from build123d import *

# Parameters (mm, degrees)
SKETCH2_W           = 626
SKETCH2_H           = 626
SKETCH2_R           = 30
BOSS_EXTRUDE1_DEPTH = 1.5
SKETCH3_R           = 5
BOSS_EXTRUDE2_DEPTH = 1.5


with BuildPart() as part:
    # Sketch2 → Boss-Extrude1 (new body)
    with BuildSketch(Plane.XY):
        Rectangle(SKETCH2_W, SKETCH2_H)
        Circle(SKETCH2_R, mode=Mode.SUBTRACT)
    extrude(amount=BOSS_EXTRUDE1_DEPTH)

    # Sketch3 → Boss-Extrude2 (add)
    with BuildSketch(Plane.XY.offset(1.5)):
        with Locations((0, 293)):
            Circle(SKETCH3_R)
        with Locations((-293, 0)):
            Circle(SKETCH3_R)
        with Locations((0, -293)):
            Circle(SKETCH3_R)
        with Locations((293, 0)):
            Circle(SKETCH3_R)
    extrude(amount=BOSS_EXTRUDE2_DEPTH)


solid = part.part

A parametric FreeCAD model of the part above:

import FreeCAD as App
import Part
import Sketcher

V = App.Vector
Q = App.Units.Quantity

doc = App.newDocument("Part")
body = doc.addObject("PartDesign::Body", "Body")

sketch1 = body.newObject("Sketcher::SketchObject", "Sketch")
sketch1.AttachmentSupport = (doc.getObject("XY_Plane"), [""])
sketch1.MapMode = "FlatFace"
sketch1.addGeometry(Part.LineSegment(V(-313, 313, 0), V(-313, -313, 0)), False)
sketch1.addGeometry(Part.LineSegment(V(-313, -313, 0), V(313, -313, 0)), False)
sketch1.addGeometry(Part.LineSegment(V(313, -313, 0), V(313, 313, 0)), False)
sketch1.addGeometry(Part.LineSegment(V(313, 313, 0), V(-313, 313, 0)), False)
sketch1.addGeometry(Part.Circle(V(0, 0, 0), V(0, 0, 1), 30), False)
sketch1.addConstraint(Sketcher.Constraint("Coincident", 0, 2, 1, 1))
sketch1.addConstraint(Sketcher.Constraint("Coincident", 1, 2, 2, 1))
sketch1.addConstraint(Sketcher.Constraint("Coincident", 2, 2, 3, 1))
sketch1.addConstraint(Sketcher.Constraint("Coincident", 3, 2, 0, 1))
sketch1.addConstraint(Sketcher.Constraint("Vertical", 0))
sketch1.addConstraint(Sketcher.Constraint("Horizontal", 1))
sketch1.addConstraint(Sketcher.Constraint("Vertical", 2))
sketch1.addConstraint(Sketcher.Constraint("Horizontal", 3))
sketch1.addConstraint(Sketcher.Constraint("Coincident", 4, 3, -1, 1))
sketch1.addConstraint(Sketcher.Constraint("Symmetric", 0, 2, 2, 2, -1, 1))
sketch1.addConstraint(Sketcher.Constraint("Equal", 3, 0))
sketch1.addConstraint(Sketcher.Constraint("Diameter", 4, Q("60 mm")))
sketch1.addConstraint(Sketcher.Constraint("DistanceX", 1, 1, 1, 2, Q("626 mm")))
pad1 = body.newObject("PartDesign::Pad", "Pad")
pad1.Profile = sketch1
pad1.Length = 1.5

sketch2 = body.newObject("Sketcher::SketchObject", "Sketch001")
sketch2.AttachmentSupport = (doc.getObject("XY_Plane"), [""])
sketch2.MapMode = "FlatFace"
sketch2.AttachmentOffset = App.Placement(V(0, 0, 1.5), App.Rotation())
sketch2.addGeometry(Part.Circle(V(0, 293, 0), V(0, 0, 1), 5), False)
sketch2.addGeometry(Part.Circle(V(-293, 0, 0), V(0, 0, 1), 5), False)
sketch2.addGeometry(Part.Circle(V(0, -293, 0), V(0, 0, 1), 5), False)
sketch2.addGeometry(Part.Circle(V(293, 0, 0), V(0, 0, 1), 5), False)
sketch2.addConstraint(Sketcher.Constraint("Equal", 0, 1))
sketch2.addConstraint(Sketcher.Constraint("Equal", 1, 2))
sketch2.addConstraint(Sketcher.Constraint("Equal", 2, 3))
sketch2.addConstraint(Sketcher.Constraint("Symmetric", 0, 3, 2, 3, -1, 1))
sketch2.addConstraint(Sketcher.Constraint("Symmetric", 1, 3, 3, 3, -1, 1))
sketch2.addConstraint(Sketcher.Constraint("PointOnObject", 0, 3, -2))
sketch2.addConstraint(Sketcher.Constraint("PointOnObject", 1, 3, -1))
sketch2.addConstraint(Sketcher.Constraint("Diameter", 0, Q("10 mm")))
sketch2.addConstraint(Sketcher.Constraint("DistanceY", -1, 1, 0, 3, Q("293 mm")))
sketch2.addConstraint(Sketcher.Constraint("DistanceX", 1, 3, -1, 1, Q("293 mm")))
pad2 = body.newObject("PartDesign::Pad", "Pad001")
pad2.Profile = sketch2
pad2.Length = 1.5

doc.recompute()
